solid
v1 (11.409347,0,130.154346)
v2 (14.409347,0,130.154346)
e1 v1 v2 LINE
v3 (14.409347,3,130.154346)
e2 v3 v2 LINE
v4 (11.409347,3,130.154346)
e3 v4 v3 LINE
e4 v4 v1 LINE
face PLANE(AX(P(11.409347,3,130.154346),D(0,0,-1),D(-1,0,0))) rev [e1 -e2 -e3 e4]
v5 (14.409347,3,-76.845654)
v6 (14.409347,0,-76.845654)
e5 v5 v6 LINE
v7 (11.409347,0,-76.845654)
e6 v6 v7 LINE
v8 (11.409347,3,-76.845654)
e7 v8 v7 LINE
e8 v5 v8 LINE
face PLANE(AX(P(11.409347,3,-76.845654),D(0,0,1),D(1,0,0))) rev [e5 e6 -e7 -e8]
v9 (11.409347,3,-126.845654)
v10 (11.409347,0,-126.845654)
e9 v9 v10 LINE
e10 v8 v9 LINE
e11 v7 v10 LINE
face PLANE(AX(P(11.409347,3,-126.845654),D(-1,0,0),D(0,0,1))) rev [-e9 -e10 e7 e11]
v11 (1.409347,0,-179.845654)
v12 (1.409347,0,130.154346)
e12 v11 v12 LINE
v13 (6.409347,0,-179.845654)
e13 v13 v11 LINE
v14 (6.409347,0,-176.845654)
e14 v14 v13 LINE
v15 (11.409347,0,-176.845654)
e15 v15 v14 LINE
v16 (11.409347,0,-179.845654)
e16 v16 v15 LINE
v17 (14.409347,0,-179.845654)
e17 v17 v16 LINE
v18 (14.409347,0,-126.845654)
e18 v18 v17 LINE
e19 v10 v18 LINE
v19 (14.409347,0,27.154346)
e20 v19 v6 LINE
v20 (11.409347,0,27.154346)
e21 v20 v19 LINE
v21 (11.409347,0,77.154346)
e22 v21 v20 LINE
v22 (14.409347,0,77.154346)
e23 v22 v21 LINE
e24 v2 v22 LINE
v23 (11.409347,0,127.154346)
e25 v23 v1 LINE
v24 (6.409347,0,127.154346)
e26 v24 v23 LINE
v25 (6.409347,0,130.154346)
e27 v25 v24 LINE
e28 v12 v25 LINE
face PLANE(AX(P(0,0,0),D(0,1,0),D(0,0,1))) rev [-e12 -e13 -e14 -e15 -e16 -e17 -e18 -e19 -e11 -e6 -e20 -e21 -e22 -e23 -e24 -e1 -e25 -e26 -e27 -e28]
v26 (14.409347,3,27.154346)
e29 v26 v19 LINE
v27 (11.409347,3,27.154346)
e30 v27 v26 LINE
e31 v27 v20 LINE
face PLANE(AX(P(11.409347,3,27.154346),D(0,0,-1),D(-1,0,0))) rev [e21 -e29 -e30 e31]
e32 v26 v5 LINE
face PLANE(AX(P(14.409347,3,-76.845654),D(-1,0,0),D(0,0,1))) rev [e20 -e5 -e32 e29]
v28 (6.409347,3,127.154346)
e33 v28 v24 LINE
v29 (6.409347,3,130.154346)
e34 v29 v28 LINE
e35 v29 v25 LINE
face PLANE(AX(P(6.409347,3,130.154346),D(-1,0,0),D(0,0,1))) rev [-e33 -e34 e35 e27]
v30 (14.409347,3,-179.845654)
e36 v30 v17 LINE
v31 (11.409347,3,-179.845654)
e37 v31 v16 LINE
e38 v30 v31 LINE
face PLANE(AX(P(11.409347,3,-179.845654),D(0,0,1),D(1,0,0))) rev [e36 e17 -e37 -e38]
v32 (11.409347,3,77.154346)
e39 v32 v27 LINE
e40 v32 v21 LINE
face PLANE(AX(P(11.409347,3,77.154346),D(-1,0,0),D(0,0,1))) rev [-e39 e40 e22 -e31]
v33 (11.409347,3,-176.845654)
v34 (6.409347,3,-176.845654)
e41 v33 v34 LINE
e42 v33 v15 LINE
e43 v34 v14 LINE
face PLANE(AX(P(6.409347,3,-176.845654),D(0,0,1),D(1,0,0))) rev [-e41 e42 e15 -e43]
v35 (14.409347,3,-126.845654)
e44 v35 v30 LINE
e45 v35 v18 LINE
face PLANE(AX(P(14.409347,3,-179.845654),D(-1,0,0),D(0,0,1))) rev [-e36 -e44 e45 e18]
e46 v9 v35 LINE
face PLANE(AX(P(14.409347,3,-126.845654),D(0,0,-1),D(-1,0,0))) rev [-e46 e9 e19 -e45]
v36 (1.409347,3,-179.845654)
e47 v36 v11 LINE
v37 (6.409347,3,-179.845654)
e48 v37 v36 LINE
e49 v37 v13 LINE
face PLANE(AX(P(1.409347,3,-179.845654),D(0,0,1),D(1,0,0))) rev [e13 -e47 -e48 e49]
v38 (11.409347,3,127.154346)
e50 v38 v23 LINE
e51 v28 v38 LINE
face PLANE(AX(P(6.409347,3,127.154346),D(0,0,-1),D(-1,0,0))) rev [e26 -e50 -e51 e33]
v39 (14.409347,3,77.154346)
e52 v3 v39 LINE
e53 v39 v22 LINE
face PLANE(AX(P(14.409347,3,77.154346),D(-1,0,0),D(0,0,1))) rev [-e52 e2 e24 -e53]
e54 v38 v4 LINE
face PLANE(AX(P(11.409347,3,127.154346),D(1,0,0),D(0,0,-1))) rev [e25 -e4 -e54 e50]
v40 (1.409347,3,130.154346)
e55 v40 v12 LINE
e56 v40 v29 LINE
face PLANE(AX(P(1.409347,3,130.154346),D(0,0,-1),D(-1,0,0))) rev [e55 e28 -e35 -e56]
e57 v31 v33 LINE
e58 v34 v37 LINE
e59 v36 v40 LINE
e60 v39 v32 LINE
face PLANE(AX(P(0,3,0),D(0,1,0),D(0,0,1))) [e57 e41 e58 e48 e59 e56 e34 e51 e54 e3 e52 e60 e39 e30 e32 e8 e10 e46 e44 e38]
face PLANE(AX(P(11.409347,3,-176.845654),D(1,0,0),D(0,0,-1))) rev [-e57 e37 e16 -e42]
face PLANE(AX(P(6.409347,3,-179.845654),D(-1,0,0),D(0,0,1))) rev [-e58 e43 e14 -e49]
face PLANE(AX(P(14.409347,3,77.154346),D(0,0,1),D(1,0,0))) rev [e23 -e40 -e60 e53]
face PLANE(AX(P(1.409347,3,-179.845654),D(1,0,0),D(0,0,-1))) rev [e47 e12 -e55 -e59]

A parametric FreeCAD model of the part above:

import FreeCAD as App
import Part
import Sketcher
Q = App.Units.Quantity


def add_polygon(sketch, points):
    """Adds a closed chain of lines whose ends are joined by coincident constraints."""
    first, n = sketch.GeometryCount, len(points)
    for a, b in zip(points, points[1:] + points[:1]):
        sketch.addGeometry(Part.LineSegment(App.Vector(*a, 0), App.Vector(*b, 0)), False)
    for i in range(n):
        sketch.addConstraint(Sketcher.Constraint("Coincident", first + i, 2, first + (i + 1) % n, 1))

doc = App.newDocument("Part")
body = doc.addObject("PartDesign::Body", "Body")

sketch1 = doc.addObject("Sketcher::SketchObject", "Sketch")
body.addObject(sketch1)
sketch1.AttachmentSupport = (doc.XZ_Plane, [""])
sketch1.MapMode = "FlatFace"
add_polygon(sketch1, [(6.409347, 130.154346), (6.409347, 127.154346), (11.409347, 127.154346), (11.409347, 130.154346), (14.409347, 130.154346), (14.409347, 77.154346), (11.409347, 77.154346), (11.409347, 27.154346), (14.409347, 27.154346), (14.409347, -76.845654), (11.409347, -76.845654), (11.409347, -126.845654), (14.409347, -126.845654), (14.409347, -179.845654), (11.409347, -179.845654), (11.409347, -176.845654), (6.409347, -176.845654), (6.409347, -179.845654), (1.409347, -179.845654), (1.409347, 130.154346)])
sketch1.addConstraint(Sketcher.Constraint("Vertical", 0))
sketch1.addConstraint(Sketcher.Constraint("Horizontal", 1))
sketch1.addConstraint(Sketcher.Constraint("Vertical", 2))
sketch1.addConstraint(Sketcher.Constraint("Horizontal", 3))
sketch1.addConstraint(Sketcher.Constraint("Vertical", 4))
sketch1.addConstraint(Sketcher.Constraint("Horizontal", 5))
sketch1.addConstraint(Sketcher.Constraint("Vertical", 6))
sketch1.addConstraint(Sketcher.Constraint("Horizontal", 7))
sketch1.addConstraint(Sketcher.Constraint("Vertical", 8))
sketch1.addConstraint(Sketcher.Constraint("Horizontal", 9))
sketch1.addConstraint(Sketcher.Constraint("Vertical", 10))
sketch1.addConstraint(Sketcher.Constraint("Horizontal", 11))
sketch1.addConstraint(Sketcher.Constraint("Vertical", 12))
sketch1.addConstraint(Sketcher.Constraint("Horizontal", 13))
sketch1.addConstraint(Sketcher.Constraint("Vertical", 14))
sketch1.addConstraint(Sketcher.Constraint("Horizontal", 15))
sketch1.addConstraint(Sketcher.Constraint("Vertical", 16))
sketch1.addConstraint(Sketcher.Constraint("Horizontal", 17))
sketch1.addConstraint(Sketcher.Constraint("Vertical", 18))
sketch1.addConstraint(Sketcher.Constraint("Horizontal", 19))
sketch1.addConstraint(Sketcher.Constraint("Horizontal", 13, 2, 16, 2))
sketch1.addConstraint(Sketcher.Constraint("Horizontal", 3, 2, 18, 2))
sketch1.addConstraint(Sketcher.Constraint("Vertical", 2, 2, 5, 2))
sketch1.addConstraint(Sketcher.Constraint("Vertical", 4, 2, 7, 2))
sketch1.addConstraint(Sketcher.Constraint("Vertical", 6, 2, 9, 2))
sketch1.addConstraint(Sketcher.Constraint("Vertical", 8, 2, 11, 2))
sketch1.addConstraint(Sketcher.Constraint("Vertical", 10, 2, 13, 2))
sketch1.addConstraint(Sketcher.Constraint("Vertical", 0, 2, 15, 2))
sketch1.addConstraint(Sketcher.Constraint("Equal", 15, 17))
sketch1.addConstraint(Sketcher.Constraint("Equal", 13, 0))
sketch1.addConstraint(Sketcher.Constraint("Equal", 6, 10))
sketch1.addConstraint(Sketcher.Constraint("Equal", 4, 12))
sketch1.addConstraint(Sketcher.Constraint("Equal", 2, 14))
sketch1.addConstraint(Sketcher.Constraint("DistanceX", 1, 1, 1, 2, Q("5 mm")))
sketch1.addConstraint(Sketcher.Constraint("DistanceX", 3, 1, 3, 2, Q("3 mm")))
sketch1.addConstraint(Sketcher.Constraint("DistanceY", 4, 2, 4, 1, Q("53 mm")))
sketch1.addConstraint(Sketcher.Constraint("DistanceY", 6, 2, 6, 1, Q("50 mm")))
sketch1.addConstraint(Sketcher.Constraint("DistanceY", 8, 2, 8, 1, Q("104 mm")))
sketch1.addConstraint(Sketcher.Constraint("DistanceX", -1, 1, 0, 2, Q("6.409347 mm")))
sketch1.addConstraint(Sketcher.Constraint("DistanceY", -1, 1, 0, 2, Q("127.154346 mm")))
pad1 = doc.addObject("PartDesign::Pad", "Pad")
body.addObject(pad1)
pad1.Profile = sketch1
pad1.Length = 3
pad1.Reversed = True

doc.recompute()
